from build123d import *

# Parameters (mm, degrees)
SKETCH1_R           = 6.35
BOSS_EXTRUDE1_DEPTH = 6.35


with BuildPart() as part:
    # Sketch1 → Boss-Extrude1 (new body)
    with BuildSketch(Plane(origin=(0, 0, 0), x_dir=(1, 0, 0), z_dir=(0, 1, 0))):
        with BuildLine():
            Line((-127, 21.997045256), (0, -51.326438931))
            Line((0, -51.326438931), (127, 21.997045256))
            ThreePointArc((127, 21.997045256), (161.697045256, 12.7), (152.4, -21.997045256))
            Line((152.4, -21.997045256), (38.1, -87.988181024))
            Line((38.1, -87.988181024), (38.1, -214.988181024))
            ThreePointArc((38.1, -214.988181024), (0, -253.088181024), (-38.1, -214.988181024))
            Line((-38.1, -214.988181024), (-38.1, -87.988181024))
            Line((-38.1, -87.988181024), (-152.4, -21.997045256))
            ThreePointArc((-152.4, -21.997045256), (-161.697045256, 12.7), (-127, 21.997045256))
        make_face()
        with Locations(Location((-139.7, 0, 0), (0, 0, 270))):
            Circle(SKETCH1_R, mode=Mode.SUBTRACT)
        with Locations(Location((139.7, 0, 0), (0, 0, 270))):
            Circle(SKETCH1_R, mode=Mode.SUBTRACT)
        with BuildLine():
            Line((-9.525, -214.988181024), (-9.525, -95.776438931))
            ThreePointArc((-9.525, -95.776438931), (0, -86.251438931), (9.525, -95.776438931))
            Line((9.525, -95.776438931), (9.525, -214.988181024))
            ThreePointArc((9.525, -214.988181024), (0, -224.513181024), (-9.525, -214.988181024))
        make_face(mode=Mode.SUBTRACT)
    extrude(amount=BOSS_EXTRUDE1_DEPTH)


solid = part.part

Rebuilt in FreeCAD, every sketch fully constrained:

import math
import FreeCAD as App
import Part
import Sketcher
from FreeCAD import Vector
Q = App.Units.Quantity

doc = App.newDocument("Part")
body = doc.addObject("PartDesign::Body", "Body")

# Sketch on XZ plane
sketch1 = body.newObject("Sketcher::SketchObject", "Sketch")
sketch1.AttachmentSupport = (doc.getObject("XZ_Plane"), [""])
sketch1.MapMode = "FlatFace"
sketch1.addGeometry([
    Part.LineSegment(Vector(0, 51, 0), Vector(-127, -22, 0)),  # 0
    Part.ArcOfCircle(Part.Circle(Vector(-140, 0, 0), Vector(0, 0, 1), 25), math.radians(120), math.radians(300)),  # 1
    Part.LineSegment(Vector(-152, 22, 0), Vector(-38, 88, 0)),  # 2
    Part.LineSegment(Vector(-38, 88, 0), Vector(-38, 215, 0)),  # 3
    Part.ArcOfCircle(Part.Circle(Vector(0, 215, 0), Vector(0, 0, 1), 38), math.radians(0), math.radians(180)),  # 4
    Part.LineSegment(Vector(38, 215, 0), Vector(38, 88, 0)),  # 5
    Part.LineSegment(Vector(38, 88, 0), Vector(152, 22, 0)),  # 6
    Part.ArcOfCircle(Part.Circle(Vector(140, 0, 0), Vector(0, 0, 1), 25), math.radians(-120), math.radians(60)),  # 7
    Part.LineSegment(Vector(127, -22, 0), Vector(0, 51, 0)),  # 8
    Part.LineSegment(Vector(-10, 215, 0), Vector(-10, 96, 0)),  # 9
    Part.ArcOfCircle(Part.Circle(Vector(0, 96, 0), Vector(0, 0, 1), 10), math.radians(180), math.radians(360)),  # 10
    Part.LineSegment(Vector(10, 96, 0), Vector(10, 215, 0)),  # 11
    Part.ArcOfCircle(Part.Circle(Vector(0, 215, 0), Vector(0, 0, 1), 10), math.radians(0), math.radians(180)),  # 12
    Part.Circle(Vector(140, 0, 0), Vector(0, 0, 1), 6),  # 13
    Part.Circle(Vector(-140, 0, 0), Vector(0, 0, 1), 6),  # 14
], False)
sketch1.addConstraint([
    Sketcher.Constraint("Tangent", 0, 2, 1, 2),
    Sketcher.Constraint("Tangent", 1, 1, 2, 1),
    Sketcher.Constraint("Coincident", 2, 2, 3, 1),
    Sketcher.Constraint("Tangent", 3, 2, 4, 2),
    Sketcher.Constraint("Tangent", 4, 1, 5, 1),
    Sketcher.Constraint("Coincident", 5, 2, 6, 1),
    Sketcher.Constraint("Tangent", 6, 2, 7, 2),
    Sketcher.Constraint("Tangent", 7, 1, 8, 1),
    Sketcher.Constraint("Coincident", 8, 2, 0, 1),
    Sketcher.Constraint("Tangent", 9, 2, 10, 1),
    Sketcher.Constraint("Tangent", 10, 2, 11, 1),
    Sketcher.Constraint("Tangent", 11, 2, 12, 1),
    Sketcher.Constraint("Tangent", 12, 2, 9, 1),
    Sketcher.Constraint("Vertical", 3),
    Sketcher.Constraint("Vertical", 5),
    Sketcher.Constraint("Vertical", 9),
    Sketcher.Constraint("Vertical", 11),
    Sketcher.Constraint("Coincident", 12, 3, 4, 3),
    Sketcher.Constraint("Coincident", 13, 3, 7, 3),
    Sketcher.Constraint("Coincident", 14, 3, 1, 3),
    Sketcher.Constraint("Equal", 1, 7),
    Sketcher.Constraint("Equal", 13, 14),
    Sketcher.Constraint("Symmetric", 1, 3, 7, 3, -1, 1),
    Sketcher.Constraint("Symmetric", 2, 2, 5, 2, -2),
    Sketcher.Constraint("Symmetric", 0, 2, 7, 1, -2),
    Sketcher.Constraint("Parallel", 0, 2),
    Sketcher.Constraint("Radius", 1, Q("1 in")),
    Sketcher.Constraint("Diameter", 13, Q("0.5 in")),
    Sketcher.Constraint("Radius", 4, Q("1.5 in")),
    Sketcher.Constraint("DistanceY", 3, 1, 3, 2, Q("5 in")),
    Sketcher.Constraint("DistanceX", 0, 2, -1, 1, Q("5 in")),
    Sketcher.Constraint("DistanceX", 1, 1, -1, 1, Q("6 in")),
    Sketcher.Constraint("Radius", 10, Q("0.375 in")),
    Sketcher.Constraint("DistanceY", 8, 2, 10, 3, Q("1.75 in")),
])
pad1 = body.newObject("PartDesign::Pad", "Pad")
pad1.Profile = sketch1
pad1.Length = Q("0.25 in")
pad1.Reversed = True

doc.recompute()
